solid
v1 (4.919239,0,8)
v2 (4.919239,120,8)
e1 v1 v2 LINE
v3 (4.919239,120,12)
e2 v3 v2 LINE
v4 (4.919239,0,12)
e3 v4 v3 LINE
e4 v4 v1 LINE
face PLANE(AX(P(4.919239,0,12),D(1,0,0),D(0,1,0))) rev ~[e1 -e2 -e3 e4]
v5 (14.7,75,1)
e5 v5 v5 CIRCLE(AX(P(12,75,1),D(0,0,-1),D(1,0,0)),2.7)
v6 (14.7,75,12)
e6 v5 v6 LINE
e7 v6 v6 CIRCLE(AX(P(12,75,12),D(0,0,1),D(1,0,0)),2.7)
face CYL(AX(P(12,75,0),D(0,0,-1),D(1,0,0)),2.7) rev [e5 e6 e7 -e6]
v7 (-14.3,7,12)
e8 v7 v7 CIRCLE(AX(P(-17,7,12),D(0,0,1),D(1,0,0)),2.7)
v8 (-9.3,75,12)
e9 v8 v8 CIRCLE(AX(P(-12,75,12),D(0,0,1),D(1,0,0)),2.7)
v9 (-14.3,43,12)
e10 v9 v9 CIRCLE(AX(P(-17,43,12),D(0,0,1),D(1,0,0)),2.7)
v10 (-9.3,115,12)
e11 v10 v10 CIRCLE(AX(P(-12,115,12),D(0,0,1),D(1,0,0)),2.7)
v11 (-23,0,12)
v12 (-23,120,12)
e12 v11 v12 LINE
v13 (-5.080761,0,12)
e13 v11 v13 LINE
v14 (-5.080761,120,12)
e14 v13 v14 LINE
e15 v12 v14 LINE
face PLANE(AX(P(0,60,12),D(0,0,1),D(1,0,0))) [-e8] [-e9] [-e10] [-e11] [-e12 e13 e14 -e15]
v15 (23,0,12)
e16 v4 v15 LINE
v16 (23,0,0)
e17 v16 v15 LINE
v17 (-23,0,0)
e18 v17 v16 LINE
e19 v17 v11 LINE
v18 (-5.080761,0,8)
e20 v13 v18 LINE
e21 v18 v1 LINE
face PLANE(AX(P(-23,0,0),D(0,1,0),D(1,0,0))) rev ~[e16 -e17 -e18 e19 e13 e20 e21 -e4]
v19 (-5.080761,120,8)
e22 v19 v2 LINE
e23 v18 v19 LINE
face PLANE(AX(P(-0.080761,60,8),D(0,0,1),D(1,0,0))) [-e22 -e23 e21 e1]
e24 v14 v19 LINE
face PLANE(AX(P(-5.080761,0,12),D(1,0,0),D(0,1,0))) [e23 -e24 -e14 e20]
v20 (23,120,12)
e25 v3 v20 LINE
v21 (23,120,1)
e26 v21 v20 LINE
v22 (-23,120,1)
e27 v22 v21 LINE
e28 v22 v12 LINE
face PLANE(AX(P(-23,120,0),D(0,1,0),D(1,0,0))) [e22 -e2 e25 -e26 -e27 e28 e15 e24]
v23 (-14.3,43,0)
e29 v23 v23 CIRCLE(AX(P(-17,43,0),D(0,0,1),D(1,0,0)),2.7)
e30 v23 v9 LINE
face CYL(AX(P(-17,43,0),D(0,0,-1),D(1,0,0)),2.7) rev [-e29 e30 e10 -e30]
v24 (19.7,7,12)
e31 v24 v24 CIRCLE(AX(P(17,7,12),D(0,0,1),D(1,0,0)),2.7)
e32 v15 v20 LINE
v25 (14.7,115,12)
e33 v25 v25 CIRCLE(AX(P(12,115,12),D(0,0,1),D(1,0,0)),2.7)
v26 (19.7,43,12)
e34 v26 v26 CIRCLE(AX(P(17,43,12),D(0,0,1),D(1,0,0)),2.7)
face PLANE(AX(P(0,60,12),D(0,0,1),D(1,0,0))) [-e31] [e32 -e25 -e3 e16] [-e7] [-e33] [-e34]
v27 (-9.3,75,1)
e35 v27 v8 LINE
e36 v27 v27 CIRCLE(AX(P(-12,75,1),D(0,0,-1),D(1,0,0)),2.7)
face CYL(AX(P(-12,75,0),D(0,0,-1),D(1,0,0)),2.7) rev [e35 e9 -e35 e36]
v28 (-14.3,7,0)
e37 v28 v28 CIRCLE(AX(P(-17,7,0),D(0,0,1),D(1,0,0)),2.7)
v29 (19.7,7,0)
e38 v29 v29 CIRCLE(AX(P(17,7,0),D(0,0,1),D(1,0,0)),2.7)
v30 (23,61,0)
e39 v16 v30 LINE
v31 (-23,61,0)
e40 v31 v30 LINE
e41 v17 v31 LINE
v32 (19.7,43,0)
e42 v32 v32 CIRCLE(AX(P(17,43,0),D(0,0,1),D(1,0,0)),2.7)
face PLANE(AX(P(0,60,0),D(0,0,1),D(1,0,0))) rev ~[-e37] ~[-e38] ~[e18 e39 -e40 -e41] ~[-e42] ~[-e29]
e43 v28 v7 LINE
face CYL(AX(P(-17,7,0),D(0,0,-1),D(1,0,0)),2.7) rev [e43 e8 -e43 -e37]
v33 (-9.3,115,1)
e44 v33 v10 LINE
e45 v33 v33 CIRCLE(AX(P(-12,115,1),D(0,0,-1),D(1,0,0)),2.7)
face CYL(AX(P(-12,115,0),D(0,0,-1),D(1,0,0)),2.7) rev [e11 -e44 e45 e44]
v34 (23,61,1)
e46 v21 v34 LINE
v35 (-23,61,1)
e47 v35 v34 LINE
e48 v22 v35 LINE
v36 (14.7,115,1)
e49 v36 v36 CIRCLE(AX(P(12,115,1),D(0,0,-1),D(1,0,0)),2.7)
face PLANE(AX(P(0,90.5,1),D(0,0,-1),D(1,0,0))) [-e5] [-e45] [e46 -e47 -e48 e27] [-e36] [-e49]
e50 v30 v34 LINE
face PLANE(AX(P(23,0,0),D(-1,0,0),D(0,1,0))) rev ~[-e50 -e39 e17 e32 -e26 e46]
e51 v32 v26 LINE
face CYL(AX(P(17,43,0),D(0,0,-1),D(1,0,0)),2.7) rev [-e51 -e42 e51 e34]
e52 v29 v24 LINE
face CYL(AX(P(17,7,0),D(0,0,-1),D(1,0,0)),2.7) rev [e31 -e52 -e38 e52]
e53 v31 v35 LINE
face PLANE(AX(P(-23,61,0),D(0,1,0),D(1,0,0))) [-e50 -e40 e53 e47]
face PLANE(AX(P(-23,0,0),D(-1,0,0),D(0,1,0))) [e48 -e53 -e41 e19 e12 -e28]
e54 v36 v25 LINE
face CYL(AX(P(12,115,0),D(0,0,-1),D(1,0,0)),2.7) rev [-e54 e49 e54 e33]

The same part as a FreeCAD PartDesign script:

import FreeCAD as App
import Part
import Sketcher

V = App.Vector
Q = App.Units.Quantity

doc = App.newDocument("Part")
body = doc.addObject("PartDesign::Body", "Body")

sketch1 = doc.addObject("Sketcher::SketchObject", "Sketch")
body.addObject(sketch1)
sketch1.AttachmentSupport = (doc.XY_Plane, [""])
sketch1.MapMode = "FlatFace"
sketch1.addGeometry(Part.LineSegment(V(-23, 120, 0), V(-23, 0, 0)), False)
sketch1.addGeometry(Part.LineSegment(V(-23, 0, 0), V(23, 0, 0)), False)
sketch1.addGeometry(Part.LineSegment(V(23, 0, 0), V(23, 120, 0)), False)
sketch1.addGeometry(Part.LineSegment(V(23, 120, 0), V(-23, 120, 0)), False)
sketch1.addGeometry(Part.Circle(V(-17, 7, 0), V(0, 0, 1), 2.7), False)
sketch1.addGeometry(Part.Circle(V(-17, 43, 0), V(0, 0, 1), 2.7), False)
sketch1.addGeometry(Part.Circle(V(17, 7, 0), V(0, 0, 1), 2.7), False)
sketch1.addGeometry(Part.Circle(V(17, 43, 0), V(0, 0, 1), 2.7), False)
sketch1.addGeometry(Part.Circle(V(-12, 75, 0), V(0, 0, 1), 2.7), False)
sketch1.addGeometry(Part.Circle(V(-12, 115, 0), V(0, 0, 1), 2.7), False)
sketch1.addGeometry(Part.Circle(V(12, 75, 0), V(0, 0, 1), 2.7), False)
sketch1.addGeometry(Part.Circle(V(12, 115, 0), V(0, 0, 1), 2.7), False)
sketch1.addConstraint(Sketcher.Constraint("Coincident", 0, 2, 1, 1))
sketch1.addConstraint(Sketcher.Constraint("Coincident", 1, 2, 2, 1))
sketch1.addConstraint(Sketcher.Constraint("Coincident", 2, 2, 3, 1))
sketch1.addConstraint(Sketcher.Constraint("Coincident", 3, 2, 0, 1))
sketch1.addConstraint(Sketcher.Constraint("Vertical", 0))
sketch1.addConstraint(Sketcher.Constraint("Horizontal", 1))
sketch1.addConstraint(Sketcher.Constraint("Vertical", 2))
sketch1.addConstraint(Sketcher.Constraint("Horizontal", 3))
sketch1.addConstraint(Sketcher.Constraint("Equal", 4, 5))
sketch1.addConstraint(Sketcher.Constraint("Equal", 5, 6))
sketch1.addConstraint(Sketcher.Constraint("Equal", 6, 7))
sketch1.addConstraint(Sketcher.Constraint("Equal", 7, 8))
sketch1.addConstraint(Sketcher.Constraint("Equal", 8, 9))
sketch1.addConstraint(Sketcher.Constraint("Equal", 9, 10))
sketch1.addConstraint(Sketcher.Constraint("Equal", 10, 11))
sketch1.addConstraint(Sketcher.Constraint("Symmetric", 0, 2, 1, 2, -1, 1))
sketch1.addConstraint(Sketcher.Constraint("Symmetric", 4, 3, 6, 3, -2))
sketch1.addConstraint(Sketcher.Constraint("Symmetric", 5, 3, 7, 3, -2))
sketch1.addConstraint(Sketcher.Constraint("Symmetric", 8, 3, 10, 3, -2))
sketch1.addConstraint(Sketcher.Constraint("Symmetric", 9, 3, 11, 3, -2))
sketch1.addConstraint(Sketcher.Constraint("Vertical", 4, 3, 5, 3))
sketch1.addConstraint(Sketcher.Constraint("Vertical", 8, 3, 9, 3))
sketch1.addConstraint(Sketcher.Constraint("Diameter", 4, Q("5.4 mm")))
sketch1.addConstraint(Sketcher.Constraint("DistanceX", 1, 1, 1, 2, Q("46 mm")))
sketch1.addConstraint(Sketcher.Constraint("DistanceY", 0, 2, 0, 1, Q("120 mm")))
sketch1.addConstraint(Sketcher.Constraint("DistanceX", 4, 3, -1, 1, Q("17 mm")))
sketch1.addConstraint(Sketcher.Constraint("DistanceY", -1, 1, 4, 3, Q("7 mm")))
sketch1.addConstraint(Sketcher.Constraint("DistanceY", -1, 1, 5, 3, Q("43 mm")))
sketch1.addConstraint(Sketcher.Constraint("DistanceX", 8, 3, -1, 1, Q("12 mm")))
sketch1.addConstraint(Sketcher.Constraint("DistanceY", -1, 1, 8, 3, Q("75 mm")))
sketch1.addConstraint(Sketcher.Constraint("DistanceY", -1, 1, 9, 3, Q("115 mm")))
pad1 = doc.addObject("PartDesign::Pad", "Pad")
body.addObject(pad1)
pad1.Profile = sketch1
pad1.Length = 12

sketch2 = doc.addObject("Sketcher::SketchObject", "Sketch001")
body.addObject(sketch2)
sketch2.AttachmentSupport = (doc.XY_Plane, [""])
sketch2.MapMode = "FlatFace"
sketch2.AttachmentOffset = App.Placement(V(0, 0, 12), App.Rotation())
sketch2.addGeometry(Part.LineSegment(V(-5, 120, 0), V(-5, 0, 0)), False)
sketch2.addGeometry(Part.LineSegment(V(-5, 0, 0), V(5, 0, 0)), False)
sketch2.addGeometry(Part.LineSegment(V(5, 0, 0), V(5, 120, 0)), False)
sketch2.addGeometry(Part.LineSegment(V(5, 120, 0), V(-5, 120, 0)), False)
sketch2.addConstraint(Sketcher.Constraint("Coincident", 0, 2, 1, 1))
sketch2.addConstraint(Sketcher.Constraint("Coincident", 1, 2, 2, 1))
sketch2.addConstraint(Sketcher.Constraint("Coincident", 2, 2, 3, 1))
sketch2.addConstraint(Sketcher.Constraint("Coincident", 3, 2, 0, 1))
sketch2.addConstraint(Sketcher.Constraint("Vertical", 0))
sketch2.addConstraint(Sketcher.Constraint("Horizontal", 1))
sketch2.addConstraint(Sketcher.Constraint("Vertical", 2))
sketch2.addConstraint(Sketcher.Constraint("Horizontal", 3))
sketch2.addConstraint(Sketcher.Constraint("PointOnObject", 0, 2, -1))
sketch2.addConstraint(Sketcher.Constraint("DistanceX", 1, 1, 1, 2, Q("10 mm")))
sketch2.addConstraint(Sketcher.Constraint("DistanceY", 0, 2, 0, 1, Q("120 mm")))
sketch2.addConstraint(Sketcher.Constraint("DistanceX", 0, 2, -1, 1, Q("5.080761 mm")))
pocket1 = doc.addObject("PartDesign::Pocket", "Pocket")
body.addObject(pocket1)
pocket1.Profile = sketch2
pocket1.Length = 4

sketch3 = doc.addObject("Sketcher::SketchObject", "Sketch002")
body.addObject(sketch3)
sketch3.AttachmentSupport = (doc.XY_Plane, [""])
sketch3.MapMode = "FlatFace"
sketch3.addGeometry(Part.LineSegment(V(-23, 61, 0), V(-23, 120, 0)), False)
sketch3.addGeometry(Part.LineSegment(V(-23, 120, 0), V(23, 120, 0)), False)
sketch3.addGeometry(Part.LineSegment(V(23, 120, 0), V(23, 61, 0)), False)
sketch3.addGeometry(Part.LineSegment(V(23, 61, 0), V(-23, 61, 0)), False)
sketch3.addConstraint(Sketcher.Constraint("Coincident", 0, 2, 1, 1))
sketch3.addConstraint(Sketcher.Constraint("Coincident", 1, 2, 2, 1))
sketch3.addConstraint(Sketcher.Constraint("Coincident", 2, 2, 3, 1))
sketch3.addConstraint(Sketcher.Constraint("Coincident", 3, 2, 0, 1))
sketch3.addConstraint(Sketcher.Constraint("Vertical", 0))
sketch3.addConstraint(Sketcher.Constraint("Horizontal", 1))
sketch3.addConstraint(Sketcher.Constraint("Vertical", 2))
sketch3.addConstraint(Sketcher.Constraint("Horizontal", 3))
sketch3.addConstraint(Sketcher.Constraint("DistanceX", 1, 1, 1, 2, Q("46 mm")))
sketch3.addConstraint(Sketcher.Constraint("DistanceY", 0, 1, 0, 2, Q("59 mm")))
sketch3.addConstraint(Sketcher.Constraint("DistanceX", 0, 2, -1, 1, Q("23 mm")))
sketch3.addConstraint(Sketcher.Constraint("DistanceY", -1, 1, 0, 2, Q("120 mm")))
pocket2 = doc.addObject("PartDesign::Pocket", "Pocket001")
body.addObject(pocket2)
pocket2.Profile = sketch3
pocket2.Length = 1
pocket2.Reversed = True

doc.recompute()
